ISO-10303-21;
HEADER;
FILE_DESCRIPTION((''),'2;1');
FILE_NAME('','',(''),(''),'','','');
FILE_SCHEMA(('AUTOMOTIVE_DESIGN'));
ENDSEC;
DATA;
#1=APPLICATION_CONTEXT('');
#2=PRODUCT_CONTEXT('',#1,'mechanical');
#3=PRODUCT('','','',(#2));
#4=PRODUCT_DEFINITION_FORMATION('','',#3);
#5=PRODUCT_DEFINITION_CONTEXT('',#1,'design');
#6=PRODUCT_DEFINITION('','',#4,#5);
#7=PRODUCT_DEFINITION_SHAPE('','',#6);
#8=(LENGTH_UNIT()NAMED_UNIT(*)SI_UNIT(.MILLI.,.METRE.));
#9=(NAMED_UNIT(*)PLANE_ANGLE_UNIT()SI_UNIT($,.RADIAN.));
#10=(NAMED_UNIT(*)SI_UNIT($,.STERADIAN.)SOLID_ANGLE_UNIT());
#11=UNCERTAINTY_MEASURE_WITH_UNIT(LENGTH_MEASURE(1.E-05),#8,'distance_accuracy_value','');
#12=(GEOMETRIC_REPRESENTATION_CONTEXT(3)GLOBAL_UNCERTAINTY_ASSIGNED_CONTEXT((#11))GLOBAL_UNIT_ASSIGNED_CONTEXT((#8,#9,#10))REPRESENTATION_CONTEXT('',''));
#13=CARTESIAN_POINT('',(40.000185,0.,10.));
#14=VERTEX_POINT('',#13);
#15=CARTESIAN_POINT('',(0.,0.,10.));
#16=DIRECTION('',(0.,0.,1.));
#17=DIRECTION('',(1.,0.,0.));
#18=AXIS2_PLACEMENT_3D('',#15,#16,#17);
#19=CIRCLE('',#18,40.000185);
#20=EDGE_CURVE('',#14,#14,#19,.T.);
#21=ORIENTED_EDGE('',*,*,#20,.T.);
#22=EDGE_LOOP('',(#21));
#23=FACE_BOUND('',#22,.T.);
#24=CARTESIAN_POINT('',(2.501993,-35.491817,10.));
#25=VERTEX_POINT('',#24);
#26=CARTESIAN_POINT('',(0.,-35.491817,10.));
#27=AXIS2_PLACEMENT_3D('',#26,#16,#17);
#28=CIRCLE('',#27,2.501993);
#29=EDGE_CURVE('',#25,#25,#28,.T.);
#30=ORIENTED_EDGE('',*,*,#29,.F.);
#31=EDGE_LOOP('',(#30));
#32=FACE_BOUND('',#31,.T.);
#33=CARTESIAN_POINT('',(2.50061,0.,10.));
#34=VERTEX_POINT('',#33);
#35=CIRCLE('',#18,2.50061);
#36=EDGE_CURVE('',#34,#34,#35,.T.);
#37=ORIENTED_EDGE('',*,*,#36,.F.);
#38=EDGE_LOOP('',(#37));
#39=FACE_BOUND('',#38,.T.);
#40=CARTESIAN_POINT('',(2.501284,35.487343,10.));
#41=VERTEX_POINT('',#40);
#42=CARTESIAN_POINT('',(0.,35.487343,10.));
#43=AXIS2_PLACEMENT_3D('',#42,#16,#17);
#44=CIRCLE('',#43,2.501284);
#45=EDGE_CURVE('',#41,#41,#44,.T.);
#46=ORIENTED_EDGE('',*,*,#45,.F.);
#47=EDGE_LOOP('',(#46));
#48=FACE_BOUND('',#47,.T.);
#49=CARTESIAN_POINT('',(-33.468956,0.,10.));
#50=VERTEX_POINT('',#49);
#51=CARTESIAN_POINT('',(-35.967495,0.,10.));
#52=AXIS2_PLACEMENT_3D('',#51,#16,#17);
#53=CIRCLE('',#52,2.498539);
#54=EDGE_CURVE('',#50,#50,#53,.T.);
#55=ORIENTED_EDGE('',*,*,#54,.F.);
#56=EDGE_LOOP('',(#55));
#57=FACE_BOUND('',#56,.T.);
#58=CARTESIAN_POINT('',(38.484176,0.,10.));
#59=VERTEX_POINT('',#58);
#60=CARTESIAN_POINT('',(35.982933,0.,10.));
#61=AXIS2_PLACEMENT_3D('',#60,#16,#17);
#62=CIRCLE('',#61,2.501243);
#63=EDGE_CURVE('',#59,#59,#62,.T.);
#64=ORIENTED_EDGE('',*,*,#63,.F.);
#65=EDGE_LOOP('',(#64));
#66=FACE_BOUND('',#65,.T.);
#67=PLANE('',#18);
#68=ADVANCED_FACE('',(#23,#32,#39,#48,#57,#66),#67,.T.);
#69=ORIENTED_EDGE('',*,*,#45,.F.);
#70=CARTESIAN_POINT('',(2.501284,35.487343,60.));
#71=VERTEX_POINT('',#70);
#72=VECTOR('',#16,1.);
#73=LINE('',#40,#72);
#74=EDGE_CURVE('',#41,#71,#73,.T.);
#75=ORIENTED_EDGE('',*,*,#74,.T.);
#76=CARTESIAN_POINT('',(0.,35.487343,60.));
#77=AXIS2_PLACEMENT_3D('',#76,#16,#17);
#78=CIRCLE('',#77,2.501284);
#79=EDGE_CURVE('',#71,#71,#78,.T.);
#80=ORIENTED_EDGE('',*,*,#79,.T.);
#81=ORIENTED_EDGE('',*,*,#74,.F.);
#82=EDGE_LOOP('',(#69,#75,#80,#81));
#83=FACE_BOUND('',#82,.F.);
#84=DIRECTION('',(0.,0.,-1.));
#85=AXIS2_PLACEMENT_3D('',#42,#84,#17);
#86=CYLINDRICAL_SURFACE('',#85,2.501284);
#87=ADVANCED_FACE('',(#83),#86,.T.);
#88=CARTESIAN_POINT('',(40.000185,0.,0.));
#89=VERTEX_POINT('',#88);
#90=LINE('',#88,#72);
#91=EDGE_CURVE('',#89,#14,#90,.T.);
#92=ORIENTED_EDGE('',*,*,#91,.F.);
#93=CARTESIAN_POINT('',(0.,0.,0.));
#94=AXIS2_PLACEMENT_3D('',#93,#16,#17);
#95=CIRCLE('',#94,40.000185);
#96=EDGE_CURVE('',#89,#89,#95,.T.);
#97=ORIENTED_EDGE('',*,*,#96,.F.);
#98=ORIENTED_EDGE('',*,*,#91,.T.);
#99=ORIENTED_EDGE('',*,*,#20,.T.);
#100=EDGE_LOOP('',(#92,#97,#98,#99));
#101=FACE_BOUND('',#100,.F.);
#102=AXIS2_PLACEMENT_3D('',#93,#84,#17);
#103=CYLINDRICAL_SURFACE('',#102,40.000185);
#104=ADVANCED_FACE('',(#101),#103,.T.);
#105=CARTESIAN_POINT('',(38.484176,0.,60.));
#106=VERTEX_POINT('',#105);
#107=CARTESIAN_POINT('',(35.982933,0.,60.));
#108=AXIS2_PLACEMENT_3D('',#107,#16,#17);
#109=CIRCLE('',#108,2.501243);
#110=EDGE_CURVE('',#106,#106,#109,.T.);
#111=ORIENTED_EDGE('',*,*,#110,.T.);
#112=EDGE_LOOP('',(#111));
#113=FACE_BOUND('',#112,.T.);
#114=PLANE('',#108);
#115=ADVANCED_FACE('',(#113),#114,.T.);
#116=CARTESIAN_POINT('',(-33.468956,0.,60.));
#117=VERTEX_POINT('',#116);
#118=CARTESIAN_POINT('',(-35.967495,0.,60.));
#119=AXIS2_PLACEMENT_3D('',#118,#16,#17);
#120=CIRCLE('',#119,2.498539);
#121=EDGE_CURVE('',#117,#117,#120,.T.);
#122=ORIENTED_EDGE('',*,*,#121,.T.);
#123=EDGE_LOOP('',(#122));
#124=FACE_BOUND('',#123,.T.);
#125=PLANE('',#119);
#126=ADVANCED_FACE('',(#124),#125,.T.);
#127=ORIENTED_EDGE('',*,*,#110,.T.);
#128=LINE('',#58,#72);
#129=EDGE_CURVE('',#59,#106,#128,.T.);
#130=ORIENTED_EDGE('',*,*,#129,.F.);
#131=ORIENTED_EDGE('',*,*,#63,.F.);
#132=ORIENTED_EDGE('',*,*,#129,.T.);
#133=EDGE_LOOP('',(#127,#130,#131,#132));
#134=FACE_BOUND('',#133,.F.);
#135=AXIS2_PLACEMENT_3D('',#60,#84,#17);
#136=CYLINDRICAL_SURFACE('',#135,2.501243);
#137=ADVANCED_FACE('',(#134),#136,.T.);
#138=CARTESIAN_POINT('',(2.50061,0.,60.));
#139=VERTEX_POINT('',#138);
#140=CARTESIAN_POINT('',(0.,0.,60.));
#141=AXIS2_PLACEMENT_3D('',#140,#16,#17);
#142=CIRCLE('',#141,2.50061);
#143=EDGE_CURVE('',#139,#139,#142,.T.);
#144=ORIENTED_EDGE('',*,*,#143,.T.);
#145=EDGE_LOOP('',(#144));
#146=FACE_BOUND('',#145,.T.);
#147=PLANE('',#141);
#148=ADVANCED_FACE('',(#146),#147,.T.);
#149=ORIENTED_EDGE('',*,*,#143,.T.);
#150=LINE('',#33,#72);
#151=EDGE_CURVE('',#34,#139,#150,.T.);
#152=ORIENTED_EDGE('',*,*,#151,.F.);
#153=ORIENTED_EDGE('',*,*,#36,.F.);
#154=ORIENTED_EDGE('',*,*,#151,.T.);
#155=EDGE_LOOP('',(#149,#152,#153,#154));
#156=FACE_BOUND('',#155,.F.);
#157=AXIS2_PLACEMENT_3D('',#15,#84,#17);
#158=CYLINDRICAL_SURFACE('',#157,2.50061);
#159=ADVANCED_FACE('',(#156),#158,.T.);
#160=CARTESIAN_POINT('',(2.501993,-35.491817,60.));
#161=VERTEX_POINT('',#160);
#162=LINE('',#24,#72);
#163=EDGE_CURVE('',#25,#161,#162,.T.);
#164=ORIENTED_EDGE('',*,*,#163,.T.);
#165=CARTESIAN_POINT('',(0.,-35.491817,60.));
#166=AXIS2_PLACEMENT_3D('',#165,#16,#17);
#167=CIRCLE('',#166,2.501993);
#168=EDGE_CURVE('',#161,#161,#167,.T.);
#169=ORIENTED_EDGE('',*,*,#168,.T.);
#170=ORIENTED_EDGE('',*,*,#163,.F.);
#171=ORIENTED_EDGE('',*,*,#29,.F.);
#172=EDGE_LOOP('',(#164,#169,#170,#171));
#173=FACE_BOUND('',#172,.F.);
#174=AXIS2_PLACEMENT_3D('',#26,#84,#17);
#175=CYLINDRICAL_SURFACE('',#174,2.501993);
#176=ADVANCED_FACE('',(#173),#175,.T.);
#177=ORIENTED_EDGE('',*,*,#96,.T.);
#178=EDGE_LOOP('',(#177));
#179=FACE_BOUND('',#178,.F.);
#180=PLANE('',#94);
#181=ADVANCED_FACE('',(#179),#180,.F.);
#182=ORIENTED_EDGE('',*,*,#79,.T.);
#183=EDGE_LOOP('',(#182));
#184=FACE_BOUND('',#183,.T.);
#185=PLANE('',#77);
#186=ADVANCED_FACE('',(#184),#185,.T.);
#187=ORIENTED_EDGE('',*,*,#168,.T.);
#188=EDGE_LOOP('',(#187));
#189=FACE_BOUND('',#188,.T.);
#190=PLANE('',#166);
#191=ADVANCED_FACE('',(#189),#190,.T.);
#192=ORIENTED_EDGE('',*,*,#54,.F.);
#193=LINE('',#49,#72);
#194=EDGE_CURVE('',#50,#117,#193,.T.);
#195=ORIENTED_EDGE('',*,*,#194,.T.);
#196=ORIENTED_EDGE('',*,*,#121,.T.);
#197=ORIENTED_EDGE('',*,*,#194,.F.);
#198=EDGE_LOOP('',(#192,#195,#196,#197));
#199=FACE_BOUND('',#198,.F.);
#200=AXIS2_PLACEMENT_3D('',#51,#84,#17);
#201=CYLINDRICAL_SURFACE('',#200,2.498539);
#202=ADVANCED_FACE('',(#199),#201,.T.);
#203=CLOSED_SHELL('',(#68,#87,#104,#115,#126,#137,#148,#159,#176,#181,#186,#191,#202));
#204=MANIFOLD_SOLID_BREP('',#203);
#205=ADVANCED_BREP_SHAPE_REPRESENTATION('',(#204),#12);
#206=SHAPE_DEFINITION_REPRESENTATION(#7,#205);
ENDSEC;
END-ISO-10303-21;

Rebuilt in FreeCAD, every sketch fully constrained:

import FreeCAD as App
import Part
import Sketcher

V = App.Vector

doc = App.newDocument("Part")
body = doc.addObject("PartDesign::Body", "Body")

# Sketch on XY plane
sketch1 = body.newObject("Sketcher::SketchObject", "Sketch")
sketch1.AttachmentSupport = (doc.getObject("XY_Plane"), [""])
sketch1.MapMode = "FlatFace"
sketch1.addGeometry(Part.Circle(V(0, 0, 0), V(0, 0, 1), 40), False)
sketch1.addConstraint([
    Sketcher.Constraint("Coincident", 0, 3, -1, 1),
    Sketcher.Constraint("Diameter", 0, 80.00037),
])
pad1 = body.newObject("PartDesign::Pad", "Pad")
pad1.Profile = sketch1
pad1.Length = 10

# Sketch on XY plane
sketch2 = body.newObject("Sketcher::SketchObject", "Sketch001")
sketch2.AttachmentSupport = (doc.getObject("XY_Plane"), [""])
sketch2.MapMode = "FlatFace"
sketch2.AttachmentOffset = App.Placement(V(0, 0, 10), App.Rotation())
sketch2.addGeometry(Part.Circle(V(0, 0, 0), V(0, 0, 1), 2.5), False)
sketch2.addConstraint([
    Sketcher.Constraint("Coincident", 0, 3, -1, 1),
    Sketcher.Constraint("Diameter", 0, 5.00122),
])
pad2 = body.newObject("PartDesign::Pad", "Pad001")
pad2.Profile = sketch2
pad2.Length = 50

# Sketch on XY plane
sketch3 = body.newObject("Sketcher::SketchObject", "Sketch002")
sketch3.AttachmentSupport = (doc.getObject("XY_Plane"), [""])
sketch3.MapMode = "FlatFace"
sketch3.AttachmentOffset = App.Placement(V(0, 0, 10), App.Rotation())
sketch3.addGeometry([
    Part.Circle(V(0, 35.5, 0), V(0, 0, 1), 2.5),
    Part.Circle(V(-36, 0, 0), V(0, 0, 1), 2.5),
    Part.Circle(V(0, -35.5, 0), V(0, 0, 1), 2.5),
    Part.Circle(V(36, 0, 0), V(0, 0, 1), 2.5),
], False)
sketch3.addConstraint([
    Sketcher.Constraint("PointOnObject", 0, 3, -2),
    Sketcher.Constraint("PointOnObject", 1, 3, -1),
    Sketcher.Constraint("PointOnObject", 2, 3, -2),
    Sketcher.Constraint("PointOnObject", 3, 3, -1),
    Sketcher.Constraint("Diameter", 0, 5.002568),
    Sketcher.Constraint("Diameter", 1, 4.997078),
    Sketcher.Constraint("Diameter", 2, 5.003986),
    Sketcher.Constraint("Diameter", 3, 5.002486),
    Sketcher.Constraint("DistanceY", 2, 3, 0, 3, 70.97916),
    Sketcher.Constraint("DistanceX", 1, 3, 3, 3, 71.950428),
    Sketcher.Constraint("DistanceY", -1, 1, 0, 3, 35.487343),
    Sketcher.Constraint("DistanceX", 1, 3, -1, 1, 35.967495),
])
pad3 = body.newObject("PartDesign::Pad", "Pad002")
pad3.Profile = sketch3
pad3.Length = 50

doc.recompute()
